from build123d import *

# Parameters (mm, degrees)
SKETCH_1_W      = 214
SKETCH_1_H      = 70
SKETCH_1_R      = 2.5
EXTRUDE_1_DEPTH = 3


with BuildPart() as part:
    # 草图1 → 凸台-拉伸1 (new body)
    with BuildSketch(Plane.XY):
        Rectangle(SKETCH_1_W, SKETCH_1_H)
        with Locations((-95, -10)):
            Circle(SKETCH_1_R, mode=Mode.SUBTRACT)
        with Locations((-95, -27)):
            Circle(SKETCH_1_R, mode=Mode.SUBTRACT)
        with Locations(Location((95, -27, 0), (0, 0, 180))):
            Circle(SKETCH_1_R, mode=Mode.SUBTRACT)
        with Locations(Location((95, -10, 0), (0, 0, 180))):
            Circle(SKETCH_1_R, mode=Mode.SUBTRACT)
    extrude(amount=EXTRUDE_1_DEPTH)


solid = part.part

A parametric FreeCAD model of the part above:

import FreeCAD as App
import Part
import Sketcher

V = App.Vector

doc = App.newDocument("Part")
body = doc.addObject("PartDesign::Body", "Body")

# Sketch on XY plane
sketch1 = doc.addObject("Sketcher::SketchObject", "Sketch")
body.addObject(sketch1)
sketch1.AttachmentSupport = (doc.XY_Plane, [""])
sketch1.MapMode = "FlatFace"
sketch1.addGeometry([
    Part.LineSegment(V(-107, 35, 0), V(-107, -35, 0)),  # 0
    Part.LineSegment(V(-107, -35, 0), V(107, -35, 0)),  # 1
    Part.LineSegment(V(107, -35, 0), V(107, 35, 0)),  # 2
    Part.LineSegment(V(107, 35, 0), V(-107, 35, 0)),  # 3
    Part.Circle(V(-95, -27, 0), V(0, 0, 1), 2.5),  # 4
    Part.Circle(V(95, -27, 0), V(0, 0, 1), 2.5),  # 5
    Part.Circle(V(-95, -10, 0), V(0, 0, 1), 2.5),  # 6
    Part.Circle(V(95, -10, 0), V(0, 0, 1), 2.5),  # 7
], False)
sketch1.addConstraint([
    Sketcher.Constraint("Coincident", 0, 2, 1, 1),
    Sketcher.Constraint("Coincident", 1, 2, 2, 1),
    Sketcher.Constraint("Coincident", 2, 2, 3, 1),
    Sketcher.Constraint("Coincident", 3, 2, 0, 1),
    Sketcher.Constraint("Vertical", 0),
    Sketcher.Constraint("Horizontal", 1),
    Sketcher.Constraint("Vertical", 2),
    Sketcher.Constraint("Horizontal", 3),
    Sketcher.Constraint("Equal", 4, 5),
    Sketcher.Constraint("Equal", 5, 6),
    Sketcher.Constraint("Equal", 6, 7),
    Sketcher.Constraint("Symmetric", 0, 2, 2, 2, -1, 1),
    Sketcher.Constraint("Symmetric", 4, 3, 5, 3, -2),
    Sketcher.Constraint("Symmetric", 6, 3, 7, 3, -2),
    Sketcher.Constraint("Vertical", 4, 3, 6, 3),
    Sketcher.Constraint("Diameter", 4, 5.0),
    Sketcher.Constraint("DistanceX", 1, 1, 1, 2, 214.0),
    Sketcher.Constraint("DistanceY", 0, 2, 0, 1, 70.0),
    Sketcher.Constraint("DistanceX", 4, 3, -1, 1, 95.0),
    Sketcher.Constraint("DistanceY", 4, 3, -1, 1, 27.0),
    Sketcher.Constraint("DistanceY", 6, 3, -1, 1, 10.0),
])
pad1 = doc.addObject("PartDesign::Pad", "Pad")
body.addObject(pad1)
pad1.Profile = sketch1
pad1.Length = 3

doc.recompute()
